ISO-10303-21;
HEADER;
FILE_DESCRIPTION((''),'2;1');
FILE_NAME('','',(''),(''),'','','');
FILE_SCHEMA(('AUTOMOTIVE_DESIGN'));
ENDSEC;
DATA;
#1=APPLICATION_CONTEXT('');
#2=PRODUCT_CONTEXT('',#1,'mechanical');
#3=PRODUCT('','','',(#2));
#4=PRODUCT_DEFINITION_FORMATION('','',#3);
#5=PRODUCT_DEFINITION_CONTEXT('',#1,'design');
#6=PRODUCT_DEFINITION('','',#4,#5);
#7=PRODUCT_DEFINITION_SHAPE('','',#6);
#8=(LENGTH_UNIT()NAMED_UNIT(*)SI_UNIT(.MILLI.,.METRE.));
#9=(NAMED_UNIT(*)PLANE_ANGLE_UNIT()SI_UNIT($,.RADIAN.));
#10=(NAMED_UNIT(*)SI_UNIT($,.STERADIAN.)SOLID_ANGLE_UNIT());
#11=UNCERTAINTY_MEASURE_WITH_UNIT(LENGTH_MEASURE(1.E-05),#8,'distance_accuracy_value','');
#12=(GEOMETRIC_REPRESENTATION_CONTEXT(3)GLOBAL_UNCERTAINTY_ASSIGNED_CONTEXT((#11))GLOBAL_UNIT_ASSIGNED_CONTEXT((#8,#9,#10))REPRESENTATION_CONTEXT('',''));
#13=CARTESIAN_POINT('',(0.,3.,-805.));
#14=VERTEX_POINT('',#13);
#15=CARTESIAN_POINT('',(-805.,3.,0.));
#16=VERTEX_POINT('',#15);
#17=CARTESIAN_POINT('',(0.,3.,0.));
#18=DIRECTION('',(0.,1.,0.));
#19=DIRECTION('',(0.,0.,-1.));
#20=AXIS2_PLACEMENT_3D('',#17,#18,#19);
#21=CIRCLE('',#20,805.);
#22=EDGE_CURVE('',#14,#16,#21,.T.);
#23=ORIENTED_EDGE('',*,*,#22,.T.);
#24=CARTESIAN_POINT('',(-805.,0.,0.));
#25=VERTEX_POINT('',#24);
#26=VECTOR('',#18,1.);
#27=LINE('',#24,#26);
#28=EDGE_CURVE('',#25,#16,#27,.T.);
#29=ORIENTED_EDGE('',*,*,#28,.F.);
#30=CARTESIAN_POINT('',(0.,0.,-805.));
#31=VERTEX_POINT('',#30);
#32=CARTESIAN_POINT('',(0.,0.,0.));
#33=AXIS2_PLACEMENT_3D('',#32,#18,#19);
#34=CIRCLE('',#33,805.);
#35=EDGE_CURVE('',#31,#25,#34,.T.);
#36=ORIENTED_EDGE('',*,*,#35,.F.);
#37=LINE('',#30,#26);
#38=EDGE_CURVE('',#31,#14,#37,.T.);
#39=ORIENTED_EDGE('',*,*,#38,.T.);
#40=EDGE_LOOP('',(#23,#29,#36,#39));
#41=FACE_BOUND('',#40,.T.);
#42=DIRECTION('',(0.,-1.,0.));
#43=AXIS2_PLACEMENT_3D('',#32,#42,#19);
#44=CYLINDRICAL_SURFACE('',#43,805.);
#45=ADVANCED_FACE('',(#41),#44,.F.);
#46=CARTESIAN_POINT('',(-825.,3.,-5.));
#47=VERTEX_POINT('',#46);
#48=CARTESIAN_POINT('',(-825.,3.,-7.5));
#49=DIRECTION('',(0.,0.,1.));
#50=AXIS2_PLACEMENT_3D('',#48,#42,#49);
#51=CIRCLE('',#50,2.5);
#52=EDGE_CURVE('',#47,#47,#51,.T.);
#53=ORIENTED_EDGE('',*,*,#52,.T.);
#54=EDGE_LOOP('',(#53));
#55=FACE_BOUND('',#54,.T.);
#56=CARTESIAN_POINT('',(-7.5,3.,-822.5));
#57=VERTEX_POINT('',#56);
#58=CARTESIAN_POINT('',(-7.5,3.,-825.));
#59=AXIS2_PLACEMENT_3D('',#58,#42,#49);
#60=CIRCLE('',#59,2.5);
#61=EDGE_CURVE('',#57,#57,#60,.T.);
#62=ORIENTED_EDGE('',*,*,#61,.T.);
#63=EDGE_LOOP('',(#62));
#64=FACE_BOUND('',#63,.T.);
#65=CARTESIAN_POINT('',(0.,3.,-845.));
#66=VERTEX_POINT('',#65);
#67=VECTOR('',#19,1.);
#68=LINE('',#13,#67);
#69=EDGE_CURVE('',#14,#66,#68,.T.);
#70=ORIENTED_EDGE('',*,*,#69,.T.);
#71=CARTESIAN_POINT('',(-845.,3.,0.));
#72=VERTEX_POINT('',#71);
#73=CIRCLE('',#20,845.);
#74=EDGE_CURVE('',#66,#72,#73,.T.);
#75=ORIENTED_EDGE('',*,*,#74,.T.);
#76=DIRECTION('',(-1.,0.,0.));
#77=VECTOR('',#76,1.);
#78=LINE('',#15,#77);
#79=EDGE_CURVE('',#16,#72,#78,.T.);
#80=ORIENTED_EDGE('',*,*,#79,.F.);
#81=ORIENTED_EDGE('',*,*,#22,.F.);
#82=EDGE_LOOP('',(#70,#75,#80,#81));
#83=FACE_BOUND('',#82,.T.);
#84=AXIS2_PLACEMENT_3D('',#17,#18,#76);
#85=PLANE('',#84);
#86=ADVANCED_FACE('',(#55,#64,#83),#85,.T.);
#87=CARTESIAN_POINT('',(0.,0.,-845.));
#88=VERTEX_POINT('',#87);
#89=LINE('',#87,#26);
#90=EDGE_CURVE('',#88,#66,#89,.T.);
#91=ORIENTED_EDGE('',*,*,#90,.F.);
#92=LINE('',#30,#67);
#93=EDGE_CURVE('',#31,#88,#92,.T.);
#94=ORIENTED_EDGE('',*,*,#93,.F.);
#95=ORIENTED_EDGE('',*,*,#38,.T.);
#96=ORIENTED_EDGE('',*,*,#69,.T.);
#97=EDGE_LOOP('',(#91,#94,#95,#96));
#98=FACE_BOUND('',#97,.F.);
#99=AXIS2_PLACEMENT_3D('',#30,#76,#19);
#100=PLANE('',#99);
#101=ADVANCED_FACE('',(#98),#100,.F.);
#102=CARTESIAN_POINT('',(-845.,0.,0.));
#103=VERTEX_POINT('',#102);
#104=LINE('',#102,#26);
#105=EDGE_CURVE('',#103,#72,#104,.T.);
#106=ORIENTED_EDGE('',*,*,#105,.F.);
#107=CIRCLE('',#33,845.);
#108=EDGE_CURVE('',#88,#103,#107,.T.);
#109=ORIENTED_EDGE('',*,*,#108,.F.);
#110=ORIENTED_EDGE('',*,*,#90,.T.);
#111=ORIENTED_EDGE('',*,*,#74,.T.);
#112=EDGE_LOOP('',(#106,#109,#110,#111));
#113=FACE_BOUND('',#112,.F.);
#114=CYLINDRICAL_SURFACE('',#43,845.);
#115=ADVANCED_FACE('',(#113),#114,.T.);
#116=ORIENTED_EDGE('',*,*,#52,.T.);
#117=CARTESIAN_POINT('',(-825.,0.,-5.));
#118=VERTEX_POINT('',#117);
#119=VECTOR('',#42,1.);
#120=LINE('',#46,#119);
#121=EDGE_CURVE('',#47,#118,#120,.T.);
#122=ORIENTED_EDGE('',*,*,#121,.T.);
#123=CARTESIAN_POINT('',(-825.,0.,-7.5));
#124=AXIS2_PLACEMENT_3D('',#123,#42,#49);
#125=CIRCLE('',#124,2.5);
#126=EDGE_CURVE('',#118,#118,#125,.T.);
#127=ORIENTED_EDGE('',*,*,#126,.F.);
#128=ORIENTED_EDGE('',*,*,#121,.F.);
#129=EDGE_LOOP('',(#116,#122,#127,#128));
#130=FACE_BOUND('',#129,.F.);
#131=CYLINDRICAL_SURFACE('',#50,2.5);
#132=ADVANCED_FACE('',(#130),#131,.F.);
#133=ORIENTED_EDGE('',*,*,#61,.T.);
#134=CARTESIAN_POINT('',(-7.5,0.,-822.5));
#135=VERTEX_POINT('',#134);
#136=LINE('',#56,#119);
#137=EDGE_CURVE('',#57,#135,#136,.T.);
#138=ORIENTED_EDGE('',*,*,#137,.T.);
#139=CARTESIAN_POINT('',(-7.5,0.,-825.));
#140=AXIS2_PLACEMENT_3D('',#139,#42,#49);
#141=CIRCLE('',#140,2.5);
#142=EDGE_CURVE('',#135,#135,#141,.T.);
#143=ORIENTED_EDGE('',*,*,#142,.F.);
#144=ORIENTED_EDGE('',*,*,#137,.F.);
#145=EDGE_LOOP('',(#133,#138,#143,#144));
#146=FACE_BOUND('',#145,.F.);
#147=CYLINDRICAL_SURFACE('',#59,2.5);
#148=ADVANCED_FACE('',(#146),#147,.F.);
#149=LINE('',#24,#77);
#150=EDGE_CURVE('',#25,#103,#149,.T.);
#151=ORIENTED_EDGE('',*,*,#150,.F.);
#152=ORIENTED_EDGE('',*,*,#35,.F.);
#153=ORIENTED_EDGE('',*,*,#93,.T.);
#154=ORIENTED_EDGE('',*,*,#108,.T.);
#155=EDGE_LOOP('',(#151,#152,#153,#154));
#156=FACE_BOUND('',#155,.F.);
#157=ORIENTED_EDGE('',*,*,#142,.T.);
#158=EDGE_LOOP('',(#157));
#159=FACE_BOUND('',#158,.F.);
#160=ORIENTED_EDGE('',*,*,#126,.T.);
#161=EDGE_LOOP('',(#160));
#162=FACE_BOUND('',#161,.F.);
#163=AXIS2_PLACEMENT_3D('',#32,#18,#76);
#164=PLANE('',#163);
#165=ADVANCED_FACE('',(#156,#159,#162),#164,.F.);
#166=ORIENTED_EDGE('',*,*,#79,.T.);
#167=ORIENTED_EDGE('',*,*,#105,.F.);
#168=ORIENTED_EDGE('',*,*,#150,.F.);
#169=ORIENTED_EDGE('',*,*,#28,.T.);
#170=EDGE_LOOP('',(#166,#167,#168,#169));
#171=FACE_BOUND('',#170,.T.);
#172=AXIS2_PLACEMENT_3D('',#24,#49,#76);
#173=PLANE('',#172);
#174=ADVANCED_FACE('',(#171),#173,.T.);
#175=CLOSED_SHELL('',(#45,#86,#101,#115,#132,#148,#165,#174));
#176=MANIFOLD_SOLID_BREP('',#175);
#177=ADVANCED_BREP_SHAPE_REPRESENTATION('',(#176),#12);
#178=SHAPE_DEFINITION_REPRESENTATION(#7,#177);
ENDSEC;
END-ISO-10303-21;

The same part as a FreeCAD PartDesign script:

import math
import FreeCAD as App
import Part
import Sketcher
from FreeCAD import Vector
Q = App.Units.Quantity

doc = App.newDocument("Part")
body = doc.addObject("PartDesign::Body", "Body")

# Sketch on XZ plane
sketch1 = body.newObject("Sketcher::SketchObject", "Sketch")
sketch1.AttachmentSupport = (doc.getObject("XZ_Plane"), [""])
sketch1.MapMode = "FlatFace"
sketch1.addGeometry(Part.ArcOfCircle(Part.Circle(Vector(0, 0, 0), Vector(0, 0, 1), 805), math.radians(180), math.radians(270)), False)
sketch1.addGeometry(Part.LineSegment(Vector(0, -805, 0), Vector(0, -845, 0)), False)
sketch1.addGeometry(Part.ArcOfCircle(Part.Circle(Vector(0, 0, 0), Vector(0, 0, 1), 845), math.radians(180), math.radians(270)), False)
sketch1.addGeometry(Part.LineSegment(Vector(-845, 0, 0), Vector(-805, 0, 0)), False)
sketch1.addConstraint(Sketcher.Constraint("Coincident", 0, 2, 1, 1))
sketch1.addConstraint(Sketcher.Constraint("Coincident", 1, 2, 2, 2))
sketch1.addConstraint(Sketcher.Constraint("Coincident", 2, 1, 3, 1))
sketch1.addConstraint(Sketcher.Constraint("Coincident", 3, 2, 0, 1))
sketch1.addConstraint(Sketcher.Constraint("Vertical", 1))
sketch1.addConstraint(Sketcher.Constraint("Horizontal", 3))
sketch1.addConstraint(Sketcher.Constraint("Coincident", 0, 3, -1, 1))
sketch1.addConstraint(Sketcher.Constraint("Coincident", 2, 3, -1, 1))
sketch1.addConstraint(Sketcher.Constraint("PointOnObject", 1, 2, -2))
sketch1.addConstraint(Sketcher.Constraint("PointOnObject", 3, 2, -1))
sketch1.addConstraint(Sketcher.Constraint("Radius", 0, Q("805 mm")))
sketch1.addConstraint(Sketcher.Constraint("Radius", 2, Q("845 mm")))
pad1 = body.newObject("PartDesign::Pad", "Pad")
pad1.Profile = sketch1
pad1.Length = 3
pad1.Reversed = True

# Sketch on XZ plane
sketch2 = body.newObject("Sketcher::SketchObject", "Sketch001")
sketch2.AttachmentSupport = (doc.getObject("XZ_Plane"), [""])
sketch2.MapMode = "FlatFace"
sketch2.AttachmentOffset = App.Placement(Vector(0, 0, -3), App.Rotation())
sketch2.addGeometry(Part.Circle(Vector(-825, -7.5, 0), Vector(0, 0, 1), 2.5), False)
sketch2.addGeometry(Part.Circle(Vector(-7.5, -825, 0), Vector(0, 0, 1), 2.5), False)
sketch2.addConstraint(Sketcher.Constraint("Equal", 0, 1))
sketch2.addConstraint(Sketcher.Constraint("Diameter", 0, Q("5 mm")))
sketch2.addConstraint(Sketcher.Constraint("DistanceX", 0, 3, -1, 1, Q("825 mm")))
sketch2.addConstraint(Sketcher.Constraint("DistanceY", 1, 3, -1, 1, Q("825 mm")))
sketch2.addConstraint(Sketcher.Constraint("DistanceY", 0, 3, -1, 1, Q("7.5 mm")))
sketch2.addConstraint(Sketcher.Constraint("DistanceX", 1, 3, -1, 1, Q("7.5 mm")))
doc.recompute()
hole = body.newObject("PartDesign::Hole", "Hole")
hole.Profile = sketch2
hole.ThreadType = "None"
hole.Diameter = 5
hole.DepthType = "ThroughAll"
hole.Reversed = True

doc.recompute()
